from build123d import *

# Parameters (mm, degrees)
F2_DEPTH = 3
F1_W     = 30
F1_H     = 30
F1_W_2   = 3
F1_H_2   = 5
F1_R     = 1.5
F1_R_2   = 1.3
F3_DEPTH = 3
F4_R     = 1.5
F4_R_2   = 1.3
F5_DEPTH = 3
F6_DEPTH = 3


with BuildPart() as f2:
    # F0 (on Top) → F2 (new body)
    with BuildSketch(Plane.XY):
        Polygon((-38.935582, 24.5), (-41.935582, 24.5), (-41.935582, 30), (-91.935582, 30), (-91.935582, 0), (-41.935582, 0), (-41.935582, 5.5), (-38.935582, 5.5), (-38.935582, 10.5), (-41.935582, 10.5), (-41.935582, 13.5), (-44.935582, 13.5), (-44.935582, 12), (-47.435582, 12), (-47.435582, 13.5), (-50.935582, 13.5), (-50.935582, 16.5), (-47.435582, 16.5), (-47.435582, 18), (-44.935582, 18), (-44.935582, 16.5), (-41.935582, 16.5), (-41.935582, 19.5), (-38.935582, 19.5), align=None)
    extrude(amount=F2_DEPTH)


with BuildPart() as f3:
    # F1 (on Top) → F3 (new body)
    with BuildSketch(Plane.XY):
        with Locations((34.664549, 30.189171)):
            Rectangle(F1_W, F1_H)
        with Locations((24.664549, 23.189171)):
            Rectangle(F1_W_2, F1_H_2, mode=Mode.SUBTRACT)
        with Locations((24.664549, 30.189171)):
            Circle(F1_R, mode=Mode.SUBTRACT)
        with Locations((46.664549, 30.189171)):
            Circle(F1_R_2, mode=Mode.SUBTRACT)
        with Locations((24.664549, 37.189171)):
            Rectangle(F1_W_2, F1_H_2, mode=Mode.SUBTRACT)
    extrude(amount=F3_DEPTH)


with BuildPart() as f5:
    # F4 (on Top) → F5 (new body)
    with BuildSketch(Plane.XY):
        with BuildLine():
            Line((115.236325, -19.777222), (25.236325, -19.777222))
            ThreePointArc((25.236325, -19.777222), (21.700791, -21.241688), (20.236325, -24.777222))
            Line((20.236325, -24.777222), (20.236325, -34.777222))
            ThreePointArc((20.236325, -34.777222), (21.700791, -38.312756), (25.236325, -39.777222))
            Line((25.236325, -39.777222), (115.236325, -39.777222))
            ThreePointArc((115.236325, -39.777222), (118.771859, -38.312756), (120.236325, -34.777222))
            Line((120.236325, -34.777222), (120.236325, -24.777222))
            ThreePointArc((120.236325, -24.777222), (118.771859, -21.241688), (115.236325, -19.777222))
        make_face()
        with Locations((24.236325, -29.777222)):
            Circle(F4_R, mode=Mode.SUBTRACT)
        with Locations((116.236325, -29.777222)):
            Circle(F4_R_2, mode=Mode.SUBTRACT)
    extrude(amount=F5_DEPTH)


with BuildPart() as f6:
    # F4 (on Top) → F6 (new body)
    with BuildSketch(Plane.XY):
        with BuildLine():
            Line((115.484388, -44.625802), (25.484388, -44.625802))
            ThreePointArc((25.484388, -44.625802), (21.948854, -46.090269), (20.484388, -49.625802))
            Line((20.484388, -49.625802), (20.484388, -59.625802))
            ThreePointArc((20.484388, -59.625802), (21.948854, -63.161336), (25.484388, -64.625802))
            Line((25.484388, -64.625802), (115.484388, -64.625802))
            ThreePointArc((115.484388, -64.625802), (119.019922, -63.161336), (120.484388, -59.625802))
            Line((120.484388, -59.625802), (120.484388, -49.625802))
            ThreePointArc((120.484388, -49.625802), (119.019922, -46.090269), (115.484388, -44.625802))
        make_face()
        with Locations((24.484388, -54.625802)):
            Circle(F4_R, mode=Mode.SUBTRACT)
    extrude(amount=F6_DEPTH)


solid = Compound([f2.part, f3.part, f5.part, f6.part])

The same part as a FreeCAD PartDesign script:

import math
import FreeCAD as App
import Part
import Sketcher
Q = App.Units.Quantity

doc = App.newDocument("Part")
body = doc.addObject("PartDesign::Body", "Body")

# Sketch on XY plane
sketch1 = body.newObject("Sketcher::SketchObject", "Sketch")
sketch1.AttachmentSupport = (doc.getObject("XY_Plane"), [""])
sketch1.MapMode = "FlatFace"
sketch1.addGeometry(Part.LineSegment(App.Vector(-38.9, 24.5, 0), App.Vector(-41.9, 24.5, 0)), False)
sketch1.addGeometry(Part.LineSegment(App.Vector(-41.9, 24.5, 0), App.Vector(-41.9, 30, 0)), False)
sketch1.addGeometry(Part.LineSegment(App.Vector(-41.9, 30, 0), App.Vector(-91.9, 30, 0)), False)
sketch1.addGeometry(Part.LineSegment(App.Vector(-91.9, 30, 0), App.Vector(-91.9, 0, 0)), False)
sketch1.addGeometry(Part.LineSegment(App.Vector(-91.9, 0, 0), App.Vector(-41.9, 0, 0)), False)
sketch1.addGeometry(Part.LineSegment(App.Vector(-41.9, 0, 0), App.Vector(-41.9, 5.5, 0)), False)
sketch1.addGeometry(Part.LineSegment(App.Vector(-41.9, 5.5, 0), App.Vector(-38.9, 5.5, 0)), False)
sketch1.addGeometry(Part.LineSegment(App.Vector(-38.9, 5.5, 0), App.Vector(-38.9, 10.5, 0)), False)
sketch1.addGeometry(Part.LineSegment(App.Vector(-38.9, 10.5, 0), App.Vector(-41.9, 10.5, 0)), False)
sketch1.addGeometry(Part.LineSegment(App.Vector(-41.9, 10.5, 0), App.Vector(-41.9, 13.5, 0)), False)
sketch1.addGeometry(Part.LineSegment(App.Vector(-41.9, 13.5, 0), App.Vector(-44.9, 13.5, 0)), False)
sketch1.addGeometry(Part.LineSegment(App.Vector(-44.9, 13.5, 0), App.Vector(-44.9, 12, 0)), False)
sketch1.addGeometry(Part.LineSegment(App.Vector(-44.9, 12, 0), App.Vector(-47.4, 12, 0)), False)
sketch1.addGeometry(Part.LineSegment(App.Vector(-47.4, 12, 0), App.Vector(-47.4, 13.5, 0)), False)
sketch1.addGeometry(Part.LineSegment(App.Vector(-47.4, 13.5, 0), App.Vector(-50.9, 13.5, 0)), False)
sketch1.addGeometry(Part.LineSegment(App.Vector(-50.9, 13.5, 0), App.Vector(-50.9, 16.5, 0)), False)
sketch1.addGeometry(Part.LineSegment(App.Vector(-50.9, 16.5, 0), App.Vector(-47.4, 16.5, 0)), False)
sketch1.addGeometry(Part.LineSegment(App.Vector(-47.4, 16.5, 0), App.Vector(-47.4, 18, 0)), False)
sketch1.addGeometry(Part.LineSegment(App.Vector(-47.4, 18, 0), App.Vector(-44.9, 18, 0)), False)
sketch1.addGeometry(Part.LineSegment(App.Vector(-44.9, 18, 0), App.Vector(-44.9, 16.5, 0)), False)
sketch1.addGeometry(Part.LineSegment(App.Vector(-44.9, 16.5, 0), App.Vector(-41.9, 16.5, 0)), False)
sketch1.addGeometry(Part.LineSegment(App.Vector(-41.9, 16.5, 0), App.Vector(-41.9, 19.5, 0)), False)
sketch1.addGeometry(Part.LineSegment(App.Vector(-41.9, 19.5, 0), App.Vector(-38.9, 19.5, 0)), False)
sketch1.addGeometry(Part.LineSegment(App.Vector(-38.9, 19.5, 0), App.Vector(-38.9, 24.5, 0)), False)
sketch1.addConstraint(Sketcher.Constraint("Coincident", 0, 2, 1, 1))
sketch1.addConstraint(Sketcher.Constraint("Coincident", 1, 2, 2, 1))
sketch1.addConstraint(Sketcher.Constraint("Coincident", 2, 2, 3, 1))
sketch1.addConstraint(Sketcher.Constraint("Coincident", 3, 2, 4, 1))
sketch1.addConstraint(Sketcher.Constraint("Coincident", 4, 2, 5, 1))
sketch1.addConstraint(Sketcher.Constraint("Coincident", 5, 2, 6, 1))
sketch1.addConstraint(Sketcher.Constraint("Coincident", 6, 2, 7, 1))
sketch1.addConstraint(Sketcher.Constraint("Coincident", 7, 2, 8, 1))
sketch1.addConstraint(Sketcher.Constraint("Coincident", 8, 2, 9, 1))
sketch1.addConstraint(Sketcher.Constraint("Coincident", 9, 2, 10, 1))
sketch1.addConstraint(Sketcher.Constraint("Coincident", 10, 2, 11, 1))
sketch1.addConstraint(Sketcher.Constraint("Coincident", 11, 2, 12, 1))
sketch1.addConstraint(Sketcher.Constraint("Coincident", 12, 2, 13, 1))
sketch1.addConstraint(Sketcher.Constraint("Coincident", 13, 2, 14, 1))
sketch1.addConstraint(Sketcher.Constraint("Coincident", 14, 2, 15, 1))
sketch1.addConstraint(Sketcher.Constraint("Coincident", 15, 2, 16, 1))
sketch1.addConstraint(Sketcher.Constraint("Coincident", 16, 2, 17, 1))
sketch1.addConstraint(Sketcher.Constraint("Coincident", 17, 2, 18, 1))
sketch1.addConstraint(Sketcher.Constraint("Coincident", 18, 2, 19, 1))
sketch1.addConstraint(Sketcher.Constraint("Coincident", 19, 2, 20, 1))
sketch1.addConstraint(Sketcher.Constraint("Coincident", 20, 2, 21, 1))
sketch1.addConstraint(Sketcher.Constraint("Coincident", 21, 2, 22, 1))
sketch1.addConstraint(Sketcher.Constraint("Coincident", 22, 2, 23, 1))
sketch1.addConstraint(Sketcher.Constraint("Coincident", 23, 2, 0, 1))
sketch1.addConstraint(Sketcher.Constraint("Horizontal", 0))
sketch1.addConstraint(Sketcher.Constraint("Vertical", 1))
sketch1.addConstraint(Sketcher.Constraint("Horizontal", 2))
sketch1.addConstraint(Sketcher.Constraint("Vertical", 3))
sketch1.addConstraint(Sketcher.Constraint("Horizontal", 4))
sketch1.addConstraint(Sketcher.Constraint("Vertical", 5))
sketch1.addConstraint(Sketcher.Constraint("Horizontal", 6))
sketch1.addConstraint(Sketcher.Constraint("Vertical", 7))
sketch1.addConstraint(Sketcher.Constraint("Horizontal", 8))
sketch1.addConstraint(Sketcher.Constraint("Vertical", 9))
sketch1.addConstraint(Sketcher.Constraint("Horizontal", 10))
sketch1.addConstraint(Sketcher.Constraint("Vertical", 11))
sketch1.addConstraint(Sketcher.Constraint("Horizontal", 12))
sketch1.addConstraint(Sketcher.Constraint("Vertical", 13))
sketch1.addConstraint(Sketcher.Constraint("Horizontal", 14))
sketch1.addConstraint(Sketcher.Constraint("Vertical", 15))
sketch1.addConstraint(Sketcher.Constraint("Horizontal", 16))
sketch1.addConstraint(Sketcher.Constraint("Vertical", 17))
sketch1.addConstraint(Sketcher.Constraint("Horizontal", 18))
sketch1.addConstraint(Sketcher.Constraint("Vertical", 19))
sketch1.addConstraint(Sketcher.Constraint("Horizontal", 20))
sketch1.addConstraint(Sketcher.Constraint("Vertical", 21))
sketch1.addConstraint(Sketcher.Constraint("Horizontal", 22))
sketch1.addConstraint(Sketcher.Constraint("Vertical", 23))
sketch1.addConstraint(Sketcher.Constraint("PointOnObject", 3, 2, -1))
sketch1.addConstraint(Sketcher.Constraint("Horizontal", 10, 2, 13, 2))
sketch1.addConstraint(Sketcher.Constraint("Horizontal", 16, 2, 19, 2))
sketch1.addConstraint(Sketcher.Constraint("Vertical", 1, 2, 4, 2))
sketch1.addConstraint(Sketcher.Constraint("Vertical", 5, 2, 8, 2))
sketch1.addConstraint(Sketcher.Constraint("Vertical", 13, 2, 16, 2))
sketch1.addConstraint(Sketcher.Constraint("Vertical", 11, 2, 18, 2))
sketch1.addConstraint(Sketcher.Constraint("Vertical", 9, 2, 20, 2))
sketch1.addConstraint(Sketcher.Constraint("Vertical", 7, 2, 22, 2))
sketch1.addConstraint(Sketcher.Constraint("Equal", 8, 10))
sketch1.addConstraint(Sketcher.Constraint("Equal", 1, 5))
sketch1.addConstraint(Sketcher.Constraint("Equal", 22, 9))
sketch1.addConstraint(Sketcher.Constraint("Equal", 9, 15))
sketch1.addConstraint(Sketcher.Constraint("Equal", 13, 17))
sketch1.addConstraint(Sketcher.Constraint("Equal", 15, 21))
sketch1.addConstraint(Sketcher.Constraint("Equal", 7, 23))
sketch1.addConstraint(Sketcher.Constraint("DistanceX", 0, 2, 0, 1, Q("3 mm")))
sketch1.addConstraint(Sketcher.Constraint("DistanceX", 2, 2, 2, 1, Q("50 mm")))
sketch1.addConstraint(Sketcher.Constraint("DistanceY", 3, 2, 3, 1, Q("30 mm")))
sketch1.addConstraint(Sketcher.Constraint("DistanceY", 7, 1, 7, 2, Q("5 mm")))
sketch1.addConstraint(Sketcher.Constraint("DistanceX", 12, 2, 12, 1, Q("2.5 mm")))
sketch1.addConstraint(Sketcher.Constraint("DistanceX", 14, 2, 14, 1, Q("3.5 mm")))
sketch1.addConstraint(Sketcher.Constraint("DistanceY", 11, 2, 11, 1, Q("1.5 mm")))
sketch1.addConstraint(Sketcher.Constraint("DistanceX", 0, 2, -1, 1, Q("41.935582 mm")))
pad1 = body.newObject("PartDesign::Pad", "Pad")
pad1.Profile = sketch1
pad1.Length = 3
body2 = doc.addObject("PartDesign::Body", "Body001")

# Sketch on XY plane
sketch2 = body2.newObject("Sketcher::SketchObject", "Sketch001")
sketch2.AttachmentSupport = (doc.getObject("XY_Plane001"), [""])
sketch2.MapMode = "FlatFace"
sketch2.addGeometry(Part.LineSegment(App.Vector(19.7, 45.2, 0), App.Vector(19.7, 15.2, 0)), False)
sketch2.addGeometry(Part.LineSegment(App.Vector(19.7, 15.2, 0), App.Vector(49.7, 15.2, 0)), False)
sketch2.addGeometry(Part.LineSegment(App.Vector(49.7, 15.2, 0), App.Vector(49.7, 45.2, 0)), False)
sketch2.addGeometry(Part.LineSegment(App.Vector(49.7, 45.2, 0), App.Vector(19.7, 45.2, 0)), False)
sketch2.addGeometry(Part.LineSegment(App.Vector(26.2, 20.7, 0), App.Vector(23.2, 20.7, 0)), False)
sketch2.addGeometry(Part.LineSegment(App.Vector(23.2, 20.7, 0), App.Vector(23.2, 25.7, 0)), False)
sketch2.addGeometry(Part.LineSegment(App.Vector(23.2, 25.7, 0), App.Vector(26.2, 25.7, 0)), False)
sketch2.addGeometry(Part.LineSegment(App.Vector(26.2, 25.7, 0), App.Vector(26.2, 20.7, 0)), False)
sketch2.addGeometry(Part.Circle(App.Vector(24.7, 30.2, 0), App.Vector(0, 0, 1), 1.5), False)
sketch2.addGeometry(Part.LineSegment(App.Vector(26.2, 34.7, 0), App.Vector(23.2, 34.7, 0)), False)
sketch2.addGeometry(Part.LineSegment(App.Vector(23.2, 34.7, 0), App.Vector(23.2, 39.7, 0)), False)
sketch2.addGeometry(Part.LineSegment(App.Vector(23.2, 39.7, 0), App.Vector(26.2, 39.7, 0)), False)
sketch2.addGeometry(Part.LineSegment(App.Vector(26.2, 39.7, 0), App.Vector(26.2, 34.7, 0)), False)
sketch2.addGeometry(Part.Circle(App.Vector(46.7, 30.2, 0), App.Vector(0, 0, 1), 1.3), False)
sketch2.addConstraint(Sketcher.Constraint("Coincident", 0, 2, 1, 1))
sketch2.addConstraint(Sketcher.Constraint("Coincident", 1, 2, 2, 1))
sketch2.addConstraint(Sketcher.Constraint("Coincident", 2, 2, 3, 1))
sketch2.addConstraint(Sketcher.Constraint("Coincident", 3, 2, 0, 1))
sketch2.addConstraint(Sketcher.Constraint("Coincident", 4, 2, 5, 1))
sketch2.addConstraint(Sketcher.Constraint("Coincident", 5, 2, 6, 1))
sketch2.addConstraint(Sketcher.Constraint("Coincident", 6, 2, 7, 1))
sketch2.addConstraint(Sketcher.Constraint("Coincident", 7, 2, 4, 1))
sketch2.addConstraint(Sketcher.Constraint("Coincident", 9, 2, 10, 1))
sketch2.addConstraint(Sketcher.Constraint("Coincident", 10, 2, 11, 1))
sketch2.addConstraint(Sketcher.Constraint("Coincident", 11, 2, 12, 1))
sketch2.addConstraint(Sketcher.Constraint("Coincident", 12, 2, 9, 1))
sketch2.addConstraint(Sketcher.Constraint("Vertical", 0))
sketch2.addConstraint(Sketcher.Constraint("Horizontal", 1))
sketch2.addConstraint(Sketcher.Constraint("Vertical", 2))
sketch2.addConstraint(Sketcher.Constraint("Horizontal", 3))
sketch2.addConstraint(Sketcher.Constraint("Horizontal", 4))
sketch2.addConstraint(Sketcher.Constraint("Vertical", 5))
sketch2.addConstraint(Sketcher.Constraint("Horizontal", 6))
sketch2.addConstraint(Sketcher.Constraint("Vertical", 7))
sketch2.addConstraint(Sketcher.Constraint("Horizontal", 9))
sketch2.addConstraint(Sketcher.Constraint("Vertical", 10))
sketch2.addConstraint(Sketcher.Constraint("Horizontal", 11))
sketch2.addConstraint(Sketcher.Constraint("Vertical", 12))
sketch2.addConstraint(Sketcher.Constraint("Horizontal", 8, 3, 13, 3))
sketch2.addConstraint(Sketcher.Constraint("Vertical", 5, 2, 9, 2))
sketch2.addConstraint(Sketcher.Constraint("Vertical", 7, 2, 11, 2))
sketch2.addConstraint(Sketcher.Constraint("Equal", 3, 0))
sketch2.addConstraint(Sketcher.Constraint("Equal", 7, 10))
sketch2.addConstraint(Sketcher.Constraint("Diameter", 8, Q("3 mm")))
sketch2.addConstraint(Sketcher.Constraint("Diameter", 13, Q("2.6 mm")))
sketch2.addConstraint(Sketcher.Constraint("DistanceX", 1, 1, 1, 2, Q("30 mm")))
sketch2.addConstraint(Sketcher.Constraint("DistanceX", 4, 2, 4, 1, Q("3 mm")))
sketch2.addConstraint(Sketcher.Constraint("DistanceY", 5, 1, 5, 2, Q("5 mm")))
sketch2.addConstraint(Sketcher.Constraint("DistanceX", 8, 3, 13, 3, Q("22 mm")))
sketch2.addConstraint(Sketcher.Constraint("DistanceX", 0, 2, 8, 3, Q("5 mm")))
sketch2.addConstraint(Sketcher.Constraint("DistanceY", 0, 2, 8, 3, Q("15 mm")))
sketch2.addConstraint(Sketcher.Constraint("DistanceY", 5, 2, 9, 2, Q("9 mm")))
sketch2.addConstraint(Sketcher.Constraint("DistanceX", 0, 2, 4, 2, Q("3.5 mm")))
sketch2.addConstraint(Sketcher.Constraint("DistanceY", 0, 2, 4, 2, Q("5.5 mm")))
sketch2.addConstraint(Sketcher.Constraint("DistanceX", -1, 1, 8, 3, Q("24.664549 mm")))
sketch2.addConstraint(Sketcher.Constraint("DistanceY", -1, 1, 8, 3, Q("30.189171 mm")))
pad2 = body2.newObject("PartDesign::Pad", "Pad001")
pad2.Profile = sketch2
pad2.Length = 3
body3 = doc.addObject("PartDesign::Body", "Body002")

# Sketch on XY plane
sketch3 = body3.newObject("Sketcher::SketchObject", "Sketch002")
sketch3.AttachmentSupport = (doc.getObject("XY_Plane002"), [""])
sketch3.MapMode = "FlatFace"
sketch3.addGeometry(Part.LineSegment(App.Vector(115.2, -19.8, 0), App.Vector(25.2, -19.8, 0)), False)
sketch3.addGeometry(Part.ArcOfCircle(Part.Circle(App.Vector(25.2, -24.8, 0), App.Vector(0, 0, 1), 5), math.radians(90), math.radians(180)), False)
sketch3.addGeometry(Part.LineSegment(App.Vector(20.2, -24.8, 0), App.Vector(20.2, -34.8, 0)), False)
sketch3.addGeometry(Part.ArcOfCircle(Part.Circle(App.Vector(25.2, -34.8, 0), App.Vector(0, 0, 1), 5), math.radians(180), math.radians(270)), False)
sketch3.addGeometry(Part.LineSegment(App.Vector(25.2, -39.8, 0), App.Vector(115.2, -39.8, 0)), False)
sketch3.addGeometry(Part.ArcOfCircle(Part.Circle(App.Vector(115.2, -34.8, 0), App.Vector(0, 0, 1), 5), math.radians(-90), math.radians(0)), False)
sketch3.addGeometry(Part.LineSegment(App.Vector(120.2, -34.8, 0), App.Vector(120.2, -24.8, 0)), False)
sketch3.addGeometry(Part.ArcOfCircle(Part.Circle(App.Vector(115.2, -24.8, 0), App.Vector(0, 0, 1), 5), math.radians(0), math.radians(90)), False)
sketch3.addGeometry(Part.Circle(App.Vector(24.2, -29.8, 0), App.Vector(0, 0, 1), 1.5), False)
sketch3.addGeometry(Part.Circle(App.Vector(116.2, -29.8, 0), App.Vector(0, 0, 1), 1.3), False)
sketch3.addConstraint(Sketcher.Constraint("Tangent", 0, 2, 1, 1))
sketch3.addConstraint(Sketcher.Constraint("Tangent", 1, 2, 2, 1))
sketch3.addConstraint(Sketcher.Constraint("Tangent", 2, 2, 3, 1))
sketch3.addConstraint(Sketcher.Constraint("Tangent", 3, 2, 4, 1))
sketch3.addConstraint(Sketcher.Constraint("Tangent", 4, 2, 5, 1))
sketch3.addConstraint(Sketcher.Constraint("Tangent", 5, 2, 6, 1))
sketch3.addConstraint(Sketcher.Constraint("Tangent", 6, 2, 7, 1))
sketch3.addConstraint(Sketcher.Constraint("Tangent", 7, 2, 0, 1))
sketch3.addConstraint(Sketcher.Constraint("Horizontal", 0))
sketch3.addConstraint(Sketcher.Constraint("Vertical", 2))
sketch3.addConstraint(Sketcher.Constraint("Horizontal", 4))
sketch3.addConstraint(Sketcher.Constraint("Vertical", 6))
sketch3.addConstraint(Sketcher.Constraint("Equal", 1, 3))
sketch3.addConstraint(Sketcher.Constraint("Equal", 3, 5))
sketch3.addConstraint(Sketcher.Constraint("Equal", 5, 7))
sketch3.addConstraint(Sketcher.Constraint("Horizontal", 8, 3, 9, 3))
sketch3.addConstraint(Sketcher.Constraint("Diameter", 8, Q("3 mm")))
sketch3.addConstraint(Sketcher.Constraint("Radius", 1, Q("5 mm")))
sketch3.addConstraint(Sketcher.Constraint("Diameter", 9, Q("2.6 mm")))
sketch3.addConstraint(Sketcher.Constraint("DistanceX", 0, 2, 0, 1, Q("90 mm")))
sketch3.addConstraint(Sketcher.Constraint("DistanceY", 2, 2, 2, 1, Q("10 mm")))
sketch3.addConstraint(Sketcher.Constraint("DistanceX", 8, 3, 1, 3, Q("1 mm")))
sketch3.addConstraint(Sketcher.Constraint("DistanceY", 8, 3, 1, 3, Q("5 mm")))
sketch3.addConstraint(Sketcher.Constraint("DistanceX", 7, 3, 9, 3, Q("1 mm")))
sketch3.addConstraint(Sketcher.Constraint("DistanceY", 1, 3, -1, 1, Q("24.777222 mm")))
sketch3.addConstraint(Sketcher.Constraint("DistanceX", -1, 1, 1, 3, Q("25.236325 mm")))
pad3 = body3.newObject("PartDesign::Pad", "Pad002")
pad3.Profile = sketch3
pad3.Length = 3
body4 = doc.addObject("PartDesign::Body", "Body003")

# Sketch on XY plane
sketch4 = body4.newObject("Sketcher::SketchObject", "Sketch003")
sketch4.AttachmentSupport = (doc.getObject("XY_Plane003"), [""])
sketch4.MapMode = "FlatFace"
sketch4.addGeometry(Part.LineSegment(App.Vector(115.5, -44.6, 0), App.Vector(25.5, -44.6, 0)), False)
sketch4.addGeometry(Part.ArcOfCircle(Part.Circle(App.Vector(25.5, -49.6, 0), App.Vector(0, 0, 1), 5), math.radians(90), math.radians(180)), False)
sketch4.addGeometry(Part.LineSegment(App.Vector(20.5, -49.6, 0), App.Vector(20.5, -59.6, 0)), False)
sketch4.addGeometry(Part.ArcOfCircle(Part.Circle(App.Vector(25.5, -59.6, 0), App.Vector(0, 0, 1), 5), math.radians(180), math.radians(270)), False)
sketch4.addGeometry(Part.LineSegment(App.Vector(25.5, -64.6, 0), App.Vector(115.5, -64.6, 0)), False)
sketch4.addGeometry(Part.ArcOfCircle(Part.Circle(App.Vector(115.5, -59.6, 0), App.Vector(0, 0, 1), 5), math.radians(-90), math.radians(0)), False)
sketch4.addGeometry(Part.LineSegment(App.Vector(120.5, -59.6, 0), App.Vector(120.5, -49.6, 0)), False)
sketch4.addGeometry(Part.ArcOfCircle(Part.Circle(App.Vector(115.5, -49.6, 0), App.Vector(0, 0, 1), 5), math.radians(0), math.radians(90)), False)
sketch4.addGeometry(Part.Circle(App.Vector(24.5, -54.6, 0), App.Vector(0, 0, 1), 1.5), False)
sketch4.addConstraint(Sketcher.Constraint("Tangent", 0, 2, 1, 1))
sketch4.addConstraint(Sketcher.Constraint("Tangent", 1, 2, 2, 1))
sketch4.addConstraint(Sketcher.Constraint("Tangent", 2, 2, 3, 1))
sketch4.addConstraint(Sketcher.Constraint("Tangent", 3, 2, 4, 1))
sketch4.addConstraint(Sketcher.Constraint("Tangent", 4, 2, 5, 1))
sketch4.addConstraint(Sketcher.Constraint("Tangent", 5, 2, 6, 1))
sketch4.addConstraint(Sketcher.Constraint("Tangent", 6, 2, 7, 1))
sketch4.addConstraint(Sketcher.Constraint("Tangent", 7, 2, 0, 1))
sketch4.addConstraint(Sketcher.Constraint("Horizontal", 0))
sketch4.addConstraint(Sketcher.Constraint("Vertical", 2))
sketch4.addConstraint(Sketcher.Constraint("Horizontal", 4))
sketch4.addConstraint(Sketcher.Constraint("Vertical", 6))
sketch4.addConstraint(Sketcher.Constraint("Equal", 1, 3))
sketch4.addConstraint(Sketcher.Constraint("Equal", 3, 5))
sketch4.addConstraint(Sketcher.Constraint("Equal", 5, 7))
sketch4.addConstraint(Sketcher.Constraint("Diameter", 8, Q("3 mm")))
sketch4.addConstraint(Sketcher.Constraint("Radius", 1, Q("5.000001 mm")))
sketch4.addConstraint(Sketcher.Constraint("DistanceX", 0, 2, 0, 1, Q("90 mm")))
sketch4.addConstraint(Sketcher.Constraint("DistanceY", 2, 2, 2, 1, Q("10 mm")))
sketch4.addConstraint(Sketcher.Constraint("DistanceX", 8, 3, 1, 3, Q("1.000001 mm")))
sketch4.addConstraint(Sketcher.Constraint("DistanceY", 8, 3, 1, 3, Q("4.999999 mm")))
sketch4.addConstraint(Sketcher.Constraint("DistanceY", 3, 2, -1, 1, Q("64.625802 mm")))
sketch4.addConstraint(Sketcher.Constraint("DistanceX", -1, 1, 1, 3, Q("25.484389 mm")))
pad4 = body4.newObject("PartDesign::Pad", "Pad003")
pad4.Profile = sketch4
pad4.Length = 3

doc.recompute()
